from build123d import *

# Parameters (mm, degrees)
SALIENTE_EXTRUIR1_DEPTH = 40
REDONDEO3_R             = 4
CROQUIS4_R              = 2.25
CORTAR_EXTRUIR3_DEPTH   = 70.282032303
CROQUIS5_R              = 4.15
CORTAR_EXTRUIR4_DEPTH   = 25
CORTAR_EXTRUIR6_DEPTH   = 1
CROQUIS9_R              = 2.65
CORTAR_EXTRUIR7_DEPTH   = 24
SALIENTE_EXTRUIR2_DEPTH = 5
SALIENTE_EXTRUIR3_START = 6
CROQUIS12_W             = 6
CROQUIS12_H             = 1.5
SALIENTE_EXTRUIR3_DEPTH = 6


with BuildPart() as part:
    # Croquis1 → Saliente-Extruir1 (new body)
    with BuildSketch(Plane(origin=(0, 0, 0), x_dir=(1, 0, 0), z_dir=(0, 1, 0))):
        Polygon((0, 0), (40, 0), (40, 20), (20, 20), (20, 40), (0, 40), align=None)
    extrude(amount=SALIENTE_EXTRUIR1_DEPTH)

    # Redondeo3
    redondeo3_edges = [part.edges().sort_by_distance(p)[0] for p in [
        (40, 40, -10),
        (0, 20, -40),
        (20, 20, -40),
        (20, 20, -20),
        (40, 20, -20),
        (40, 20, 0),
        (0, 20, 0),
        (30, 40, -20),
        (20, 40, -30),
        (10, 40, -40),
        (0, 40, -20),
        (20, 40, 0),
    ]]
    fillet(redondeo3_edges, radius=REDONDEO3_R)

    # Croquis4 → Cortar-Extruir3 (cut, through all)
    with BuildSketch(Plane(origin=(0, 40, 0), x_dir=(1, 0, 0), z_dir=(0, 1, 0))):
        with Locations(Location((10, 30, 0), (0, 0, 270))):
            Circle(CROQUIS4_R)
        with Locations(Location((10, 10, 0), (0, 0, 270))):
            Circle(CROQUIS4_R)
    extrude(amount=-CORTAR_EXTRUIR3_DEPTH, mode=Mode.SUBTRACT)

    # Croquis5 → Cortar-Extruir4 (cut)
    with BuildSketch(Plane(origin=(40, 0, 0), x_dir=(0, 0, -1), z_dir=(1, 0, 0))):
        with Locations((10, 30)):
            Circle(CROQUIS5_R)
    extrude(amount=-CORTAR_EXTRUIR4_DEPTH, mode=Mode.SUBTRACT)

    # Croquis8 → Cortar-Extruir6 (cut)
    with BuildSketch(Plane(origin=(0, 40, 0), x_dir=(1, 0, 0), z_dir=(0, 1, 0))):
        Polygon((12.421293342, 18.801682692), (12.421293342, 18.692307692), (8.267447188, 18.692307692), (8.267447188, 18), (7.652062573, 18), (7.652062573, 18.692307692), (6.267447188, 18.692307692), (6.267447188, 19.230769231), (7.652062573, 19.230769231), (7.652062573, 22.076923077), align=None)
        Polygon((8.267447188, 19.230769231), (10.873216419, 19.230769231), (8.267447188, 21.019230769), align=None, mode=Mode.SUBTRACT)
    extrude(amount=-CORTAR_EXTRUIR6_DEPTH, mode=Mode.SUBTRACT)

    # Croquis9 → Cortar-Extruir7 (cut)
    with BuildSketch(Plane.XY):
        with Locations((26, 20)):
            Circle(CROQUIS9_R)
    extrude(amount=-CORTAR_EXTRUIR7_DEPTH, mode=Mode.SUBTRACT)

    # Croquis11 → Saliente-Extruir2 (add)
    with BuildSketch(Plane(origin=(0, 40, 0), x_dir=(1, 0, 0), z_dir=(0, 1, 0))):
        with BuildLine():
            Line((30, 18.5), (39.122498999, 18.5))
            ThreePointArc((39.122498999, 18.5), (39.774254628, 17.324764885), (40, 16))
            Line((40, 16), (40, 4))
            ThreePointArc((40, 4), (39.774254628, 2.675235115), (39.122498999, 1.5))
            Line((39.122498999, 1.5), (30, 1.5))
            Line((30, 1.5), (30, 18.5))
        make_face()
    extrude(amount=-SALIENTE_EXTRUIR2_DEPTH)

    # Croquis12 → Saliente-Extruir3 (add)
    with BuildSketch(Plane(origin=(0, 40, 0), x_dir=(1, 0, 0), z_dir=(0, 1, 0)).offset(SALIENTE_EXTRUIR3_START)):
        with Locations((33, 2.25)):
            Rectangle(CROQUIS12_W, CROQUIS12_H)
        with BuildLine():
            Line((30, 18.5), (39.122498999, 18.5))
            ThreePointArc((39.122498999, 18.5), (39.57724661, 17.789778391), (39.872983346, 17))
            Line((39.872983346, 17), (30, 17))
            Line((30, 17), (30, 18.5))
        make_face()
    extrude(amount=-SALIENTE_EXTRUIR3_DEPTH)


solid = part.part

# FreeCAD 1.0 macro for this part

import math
import FreeCAD as App
import Part
import Sketcher

V = App.Vector
Q = App.Units.Quantity


def edges_at(feature, points):
    """Names of the edges that pass closest to the given points."""
    edges = feature.Shape.Edges
    near = lambda p: min(range(len(edges)), key=lambda i: edges[i].distToShape(Part.Vertex(*p))[0])
    return sorted({f"Edge{near(p) + 1}" for p in points})

doc = App.newDocument("Part")
params = doc.addObject("Spreadsheet::Sheet", "Params")
for row, (alias, value) in enumerate([
    ("sketch1_width", "40 mm"),
    ("pad1_length", "40 mm"),
    ("fillet_radius", "4 mm"),
    ("sketch2_diameter", "4.5 mm"),
    ("sketch3_diameter", "8.3 mm"),
    ("pocket2_length", "25 mm"),
    ("pocket3_length", "1 mm"),
    ("sketch5_diameter", "5.3 mm"),
    ("pocket4_length", "24 mm"),
    ("sketch6_radius", "4 mm"),
    ("sketch6_height", "17 mm"),
    ("sketch6_height2", "12 mm"),
    ("pad2_length", "5 mm"),
    ("sketch7_radius", "4 mm"),
    ("sketch7_width", "6 mm"),
    ("sketch7_height", "1.5 mm"),
    ("pad3_length", "6 mm"),
], start=1):
    params.set(f"A{row}", alias)
    params.set(f"B{row}", "=" + value)
    params.setAlias(f"B{row}", alias)

body = doc.addObject("PartDesign::Body", "Body")

sketch1 = body.newObject("Sketcher::SketchObject", "Sketch")
sketch1.AttachmentSupport = (doc.getObject("XZ_Plane"), [""])
sketch1.MapMode = "FlatFace"
sketch1.addGeometry(Part.LineSegment(V(0, 0, 0), V(40, 0, 0)), False)
sketch1.addGeometry(Part.LineSegment(V(40, 0, 0), V(40, -20, 0)), False)
sketch1.addGeometry(Part.LineSegment(V(40, -20, 0), V(20, -20, 0)), False)
sketch1.addGeometry(Part.LineSegment(V(20, -20, 0), V(20, -40, 0)), False)
sketch1.addGeometry(Part.LineSegment(V(20, -40, 0), V(0, -40, 0)), False)
sketch1.addGeometry(Part.LineSegment(V(0, -40, 0), V(0, 0, 0)), False)
sketch1.addConstraint(Sketcher.Constraint("Coincident", 0, 2, 1, 1))
sketch1.addConstraint(Sketcher.Constraint("Coincident", 1, 2, 2, 1))
sketch1.addConstraint(Sketcher.Constraint("Coincident", 2, 2, 3, 1))
sketch1.addConstraint(Sketcher.Constraint("Coincident", 3, 2, 4, 1))
sketch1.addConstraint(Sketcher.Constraint("Coincident", 4, 2, 5, 1))
sketch1.addConstraint(Sketcher.Constraint("Coincident", 5, 2, 0, 1))
sketch1.addConstraint(Sketcher.Constraint("Horizontal", 0))
sketch1.addConstraint(Sketcher.Constraint("Vertical", 1))
sketch1.addConstraint(Sketcher.Constraint("Horizontal", 2))
sketch1.addConstraint(Sketcher.Constraint("Vertical", 3))
sketch1.addConstraint(Sketcher.Constraint("Horizontal", 4))
sketch1.addConstraint(Sketcher.Constraint("Vertical", 5))
sketch1.addConstraint(Sketcher.Constraint("Coincident", 5, 2, -1, 1))
sketch1.addConstraint(Sketcher.Constraint("Equal", 2, 4))
sketch1.addConstraint(Sketcher.Constraint("Equal", 4, 1))
sketch1.addConstraint(Sketcher.Constraint("Equal", 1, 3))
sketch1.addConstraint(Sketcher.Constraint("DistanceX", 0, 1, 0, 2, Q("40 mm")))
sketch1.setExpression("Constraints[16]", "Params.sketch1_width")
pad1 = body.newObject("PartDesign::Pad", "Pad")
pad1.Profile = sketch1
pad1.setExpression("Length", "Params.pad1_length")
pad1.Reversed = True
doc.recompute()

fillet = body.newObject("PartDesign::Fillet", "Fillet")
fillet.Base = (pad1, edges_at(pad1, [
    (40, 40, -10),
    (0, 20, -40),
    (20, 20, -40),
    (20, 20, -20),
    (40, 20, -20),
    (40, 20, 0),
    (0, 20, 0),
    (30, 40, -20),
    (20, 40, -30),
    (10, 40, -40),
    (0, 40, -20),
    (20, 40, 0),
]))
fillet.setExpression("Radius", "Params.fillet_radius")

sketch2 = body.newObject("Sketcher::SketchObject", "Sketch001")
sketch2.AttachmentSupport = (doc.getObject("XZ_Plane"), [""])
sketch2.MapMode = "FlatFace"
sketch2.AttachmentOffset = App.Placement(V(0, 0, -40), App.Rotation())
sketch2.addGeometry(Part.Circle(V(10, -30, 0), V(0, 0, 1), 2.25), False)
sketch2.addGeometry(Part.Circle(V(10, -10, 0), V(0, 0, 1), 2.25), False)
sketch2.addConstraint(Sketcher.Constraint("Equal", 0, 1))
sketch2.addConstraint(Sketcher.Constraint("Vertical", 0, 3, 1, 3))
sketch2.addConstraint(Sketcher.Constraint("Diameter", 0, Q("4.5 mm")))
sketch2.addConstraint(Sketcher.Constraint("DistanceX", -1, 1, 0, 3, Q("10 mm")))
sketch2.addConstraint(Sketcher.Constraint("DistanceY", 0, 3, -1, 1, Q("30 mm")))
sketch2.addConstraint(Sketcher.Constraint("DistanceY", 1, 3, -1, 1, Q("10 mm")))
sketch2.setExpression("Constraints[2]", "Params.sketch2_diameter")
pocket1 = body.newObject("PartDesign::Pocket", "Pocket")
pocket1.Profile = sketch2
pocket1.Type = "ThroughAll"
pocket1.Reversed = True

sketch3 = body.newObject("Sketcher::SketchObject", "Sketch002")
sketch3.AttachmentSupport = (doc.getObject("YZ_Plane"), [""])
sketch3.MapMode = "FlatFace"
sketch3.AttachmentOffset = App.Placement(V(0, 0, 40), App.Rotation())
sketch3.addGeometry(Part.Circle(V(30, -10, 0), V(0, 0, 1), 4.15), False)
sketch3.addConstraint(Sketcher.Constraint("Diameter", 0, Q("8.3 mm")))
sketch3.addConstraint(Sketcher.Constraint("DistanceX", -1, 1, 0, 3, Q("30 mm")))
sketch3.addConstraint(Sketcher.Constraint("DistanceY", 0, 3, -1, 1, Q("10 mm")))
sketch3.setExpression("Constraints[0]", "Params.sketch3_diameter")
pocket2 = body.newObject("PartDesign::Pocket", "Pocket001")
pocket2.Profile = sketch3
pocket2.setExpression("Length", "Params.pocket2_length")

sketch4 = body.newObject("Sketcher::SketchObject", "Sketch003")
sketch4.AttachmentSupport = (doc.getObject("XZ_Plane"), [""])
sketch4.MapMode = "FlatFace"
sketch4.AttachmentOffset = App.Placement(V(0, 0, -40), App.Rotation())
sketch4.addGeometry(Part.LineSegment(V(12.421293, -18.692308, 0), V(12.421293, -18.801683, 0)), False)
sketch4.addGeometry(Part.LineSegment(V(12.421293, -18.801683, 0), V(7.652063, -22.076923, 0)), False)
sketch4.addGeometry(Part.LineSegment(V(7.652063, -22.076923, 0), V(7.652063, -19.230769, 0)), False)
sketch4.addGeometry(Part.LineSegment(V(7.652063, -19.230769, 0), V(6.267447, -19.230769, 0)), False)
sketch4.addGeometry(Part.LineSegment(V(6.267447, -19.230769, 0), V(6.267447, -18.692308, 0)), False)
sketch4.addGeometry(Part.LineSegment(V(6.267447, -18.692308, 0), V(7.652063, -18.692308, 0)), False)
sketch4.addGeometry(Part.LineSegment(V(7.652063, -18.692308, 0), V(7.652063, -18, 0)), False)
sketch4.addGeometry(Part.LineSegment(V(7.652063, -18, 0), V(8.267447, -18, 0)), False)
sketch4.addGeometry(Part.LineSegment(V(8.267447, -18, 0), V(8.267447, -18.692308, 0)), False)
sketch4.addGeometry(Part.LineSegment(V(8.267447, -18.692308, 0), V(12.421293, -18.692308, 0)), False)
sketch4.addGeometry(Part.LineSegment(V(8.267447, -19.230769, 0), V(8.267447, -21.019231, 0)), False)
sketch4.addGeometry(Part.LineSegment(V(8.267447, -21.019231, 0), V(10.873216, -19.230769, 0)), False)
sketch4.addGeometry(Part.LineSegment(V(10.873216, -19.230769, 0), V(8.267447, -19.230769, 0)), False)
sketch4.addConstraint(Sketcher.Constraint("Coincident", 0, 2, 1, 1))
sketch4.addConstraint(Sketcher.Constraint("Coincident", 1, 2, 2, 1))
sketch4.addConstraint(Sketcher.Constraint("Coincident", 2, 2, 3, 1))
sketch4.addConstraint(Sketcher.Constraint("Coincident", 3, 2, 4, 1))
sketch4.addConstraint(Sketcher.Constraint("Coincident", 4, 2, 5, 1))
sketch4.addConstraint(Sketcher.Constraint("Coincident", 5, 2, 6, 1))
sketch4.addConstraint(Sketcher.Constraint("Coincident", 6, 2, 7, 1))
sketch4.addConstraint(Sketcher.Constraint("Coincident", 7, 2, 8, 1))
sketch4.addConstraint(Sketcher.Constraint("Coincident", 8, 2, 9, 1))
sketch4.addConstraint(Sketcher.Constraint("Coincident", 9, 2, 0, 1))
sketch4.addConstraint(Sketcher.Constraint("Coincident", 10, 2, 11, 1))
sketch4.addConstraint(Sketcher.Constraint("Coincident", 11, 2, 12, 1))
sketch4.addConstraint(Sketcher.Constraint("Coincident", 12, 2, 10, 1))
sketch4.addConstraint(Sketcher.Constraint("Vertical", 0))
sketch4.addConstraint(Sketcher.Constraint("Vertical", 2))
sketch4.addConstraint(Sketcher.Constraint("Horizontal", 3))
sketch4.addConstraint(Sketcher.Constraint("Vertical", 4))
sketch4.addConstraint(Sketcher.Constraint("Horizontal", 5))
sketch4.addConstraint(Sketcher.Constraint("Vertical", 6))
sketch4.addConstraint(Sketcher.Constraint("Horizontal", 7))
sketch4.addConstraint(Sketcher.Constraint("Vertical", 8))
sketch4.addConstraint(Sketcher.Constraint("Horizontal", 9))
sketch4.addConstraint(Sketcher.Constraint("Vertical", 10))
sketch4.addConstraint(Sketcher.Constraint("Horizontal", 12))
sketch4.addConstraint(Sketcher.Constraint("Horizontal", 5, 2, 8, 2))
sketch4.addConstraint(Sketcher.Constraint("Horizontal", 3, 2, 11, 2))
sketch4.addConstraint(Sketcher.Constraint("Vertical", 2, 2, 5, 2))
sketch4.addConstraint(Sketcher.Constraint("Vertical", 8, 2, 10, 2))
sketch4.addConstraint(Sketcher.Constraint("DistanceY", 6, 2, -1, 1, Q("18 mm")))
sketch4.addConstraint(Sketcher.Constraint("DistanceX", 4, 2, 7, 2, Q("2 mm")))
sketch4.addConstraint(Sketcher.Constraint("DistanceX", 12, 2, 12, 1, Q("2.605769 mm")))
sketch4.addConstraint(Sketcher.Constraint("DistanceY", 4, 1, 4, 2, Q("0.538462 mm")))
sketch4.addConstraint(Sketcher.Constraint("DistanceY", 10, 2, 10, 1, Q("1.788462 mm")))
sketch4.addConstraint(Sketcher.Constraint("DistanceX", 3, 2, 3, 1, Q("1.384615 mm")))
sketch4.addConstraint(Sketcher.Constraint("DistanceX", 9, 1, 9, 2, Q("4.153846 mm")))
sketch4.addConstraint(Sketcher.Constraint("DistanceY", 0, 2, 0, 1, Q("0.109375 mm")))
sketch4.addConstraint(Sketcher.Constraint("DistanceY", 2, 1, 2, 2, Q("2.846154 mm")))
sketch4.addConstraint(Sketcher.Constraint("DistanceY", 6, 1, 6, 2, Q("0.692308 mm")))
sketch4.addConstraint(Sketcher.Constraint("DistanceX", -1, 1, 0, 2, Q("12.421293 mm")))
pocket3 = body.newObject("PartDesign::Pocket", "Pocket002")
pocket3.Profile = sketch4
pocket3.setExpression("Length", "Params.pocket3_length")
pocket3.Reversed = True

sketch5 = body.newObject("Sketcher::SketchObject", "Sketch004")
sketch5.AttachmentSupport = (doc.getObject("XY_Plane"), [""])
sketch5.MapMode = "FlatFace"
sketch5.addGeometry(Part.Circle(V(26, 20, 0), V(0, 0, 1), 2.65), False)
sketch5.addConstraint(Sketcher.Constraint("Diameter", 0, Q("5.3 mm")))
sketch5.addConstraint(Sketcher.Constraint("DistanceX", -1, 1, 0, 3, Q("26 mm")))
sketch5.addConstraint(Sketcher.Constraint("DistanceY", -1, 1, 0, 3, Q("20 mm")))
sketch5.setExpression("Constraints[0]", "Params.sketch5_diameter")
pocket4 = body.newObject("PartDesign::Pocket", "Pocket003")
pocket4.Profile = sketch5
pocket4.setExpression("Length", "Params.pocket4_length")

sketch6 = body.newObject("Sketcher::SketchObject", "Sketch005")
sketch6.AttachmentSupport = (doc.getObject("XZ_Plane"), [""])
sketch6.MapMode = "FlatFace"
sketch6.AttachmentOffset = App.Placement(V(0, 0, -40), App.Rotation())
sketch6.addGeometry(Part.LineSegment(V(39.122499, -18.5, 0), V(30, -18.5, 0)), False)
sketch6.addGeometry(Part.LineSegment(V(30, -18.5, 0), V(30, -1.5, 0)), False)
sketch6.addGeometry(Part.LineSegment(V(30, -1.5, 0), V(39.122499, -1.5, 0)), False)
sketch6.addGeometry(Part.ArcOfCircle(Part.Circle(V(36, -4, 0), V(0, 0, 1), 4), math.radians(0), math.radians(38.682187)), False)
sketch6.addGeometry(Part.LineSegment(V(40, -4, 0), V(40, -16, 0)), False)
sketch6.addGeometry(Part.ArcOfCircle(Part.Circle(V(36, -16, 0), V(0, 0, 1), 4), math.radians(-38.682187), math.radians(0)), False)
sketch6.addConstraint(Sketcher.Constraint("Coincident", 0, 2, 1, 1))
sketch6.addConstraint(Sketcher.Constraint("Coincident", 1, 2, 2, 1))
sketch6.addConstraint(Sketcher.Constraint("Coincident", 2, 2, 3, 2))
sketch6.addConstraint(Sketcher.Constraint("Tangent", 3, 1, 4, 1))
sketch6.addConstraint(Sketcher.Constraint("Tangent", 4, 2, 5, 2))
sketch6.addConstraint(Sketcher.Constraint("Coincident", 5, 1, 0, 1))
sketch6.addConstraint(Sketcher.Constraint("Horizontal", 0))
sketch6.addConstraint(Sketcher.Constraint("Vertical", 1))
sketch6.addConstraint(Sketcher.Constraint("Horizontal", 2))
sketch6.addConstraint(Sketcher.Constraint("Vertical", 4))
sketch6.addConstraint(Sketcher.Constraint("Equal", 3, 5))
sketch6.addConstraint(Sketcher.Constraint("Vertical", 2, 2, 5, 1))
sketch6.addConstraint(Sketcher.Constraint("Radius", 3, Q("4 mm")))
sketch6.addConstraint(Sketcher.Constraint("DistanceY", 1, 1, 1, 2, Q("17 mm")))
sketch6.addConstraint(Sketcher.Constraint("DistanceY", 4, 2, 4, 1, Q("12 mm")))
sketch6.addConstraint(Sketcher.Constraint("DistanceX", -1, 1, 3, 3, Q("36 mm")))
sketch6.addConstraint(Sketcher.Constraint("DistanceY", 3, 3, -1, 1, Q("4 mm")))
sketch6.addConstraint(Sketcher.Constraint("DistanceX", -1, 1, 0, 2, Q("30 mm")))
sketch6.setExpression("Constraints[12]", "Params.sketch6_radius")
sketch6.setExpression("Constraints[13]", "Params.sketch6_height")
sketch6.setExpression("Constraints[14]", "Params.sketch6_height2")
pad2 = body.newObject("PartDesign::Pad", "Pad001")
pad2.Profile = sketch6
pad2.setExpression("Length", "Params.pad2_length")

sketch7 = body.newObject("Sketcher::SketchObject", "Sketch006")
sketch7.AttachmentSupport = (doc.getObject("XZ_Plane"), [""])
sketch7.MapMode = "FlatFace"
sketch7.AttachmentOffset = App.Placement(V(0, 0, -46), App.Rotation())
sketch7.addGeometry(Part.LineSegment(V(30, -3, 0), V(30, -1.5, 0)), False)
sketch7.addGeometry(Part.LineSegment(V(30, -1.5, 0), V(36, -1.5, 0)), False)
sketch7.addGeometry(Part.LineSegment(V(36, -1.5, 0), V(36, -3, 0)), False)
sketch7.addGeometry(Part.LineSegment(V(36, -3, 0), V(30, -3, 0)), False)
sketch7.addGeometry(Part.LineSegment(V(39.122499, -18.5, 0), V(30, -18.5, 0)), False)
sketch7.addGeometry(Part.LineSegment(V(30, -18.5, 0), V(30, -17, 0)), False)
sketch7.addGeometry(Part.LineSegment(V(30, -17, 0), V(39.872983, -17, 0)), False)
sketch7.addGeometry(Part.ArcOfCircle(Part.Circle(V(36, -16, 0), V(0, 0, 1), 4), math.radians(-38.682187), math.radians(-14.477512)), False)
sketch7.addConstraint(Sketcher.Constraint("Coincident", 0, 2, 1, 1))
sketch7.addConstraint(Sketcher.Constraint("Coincident", 1, 2, 2, 1))
sketch7.addConstraint(Sketcher.Constraint("Coincident", 2, 2, 3, 1))
sketch7.addConstraint(Sketcher.Constraint("Coincident", 3, 2, 0, 1))
sketch7.addConstraint(Sketcher.Constraint("Coincident", 4, 2, 5, 1))
sketch7.addConstraint(Sketcher.Constraint("Coincident", 5, 2, 6, 1))
sketch7.addConstraint(Sketcher.Constraint("Coincident", 6, 2, 7, 2))
sketch7.addConstraint(Sketcher.Constraint("Coincident", 7, 1, 4, 1))
sketch7.addConstraint(Sketcher.Constraint("Vertical", 0))
sketch7.addConstraint(Sketcher.Constraint("Horizontal", 1))
sketch7.addConstraint(Sketcher.Constraint("Vertical", 2))
sketch7.addConstraint(Sketcher.Constraint("Horizontal", 3))
sketch7.addConstraint(Sketcher.Constraint("Horizontal", 4))
sketch7.addConstraint(Sketcher.Constraint("Vertical", 5))
sketch7.addConstraint(Sketcher.Constraint("Horizontal", 6))
sketch7.addConstraint(Sketcher.Constraint("Vertical", 7, 3, 1, 2))
sketch7.addConstraint(Sketcher.Constraint("Vertical", 3, 2, 4, 2))
sketch7.addConstraint(Sketcher.Constraint("Equal", 2, 5))
sketch7.addConstraint(Sketcher.Constraint("Radius", 7, Q("4 mm")))
sketch7.addConstraint(Sketcher.Constraint("DistanceX", 1, 1, 1, 2, Q("6 mm")))
sketch7.addConstraint(Sketcher.Constraint("DistanceY", 0, 1, 0, 2, Q("1.5 mm")))
sketch7.addConstraint(Sketcher.Constraint("DistanceX", -1, 1, 7, 3, Q("36 mm")))
sketch7.addConstraint(Sketcher.Constraint("DistanceY", 7, 3, -1, 1, Q("16 mm")))
sketch7.addConstraint(Sketcher.Constraint("DistanceY", 2, 2, -1, 1, Q("3 mm")))
sketch7.addConstraint(Sketcher.Constraint("DistanceY", 5, 2, -1, 1, Q("17 mm")))
sketch7.setExpression("Constraints[18]", "Params.sketch7_radius")
sketch7.setExpression("Constraints[19]", "Params.sketch7_width")
sketch7.setExpression("Constraints[20]", "Params.sketch7_height")
pad3 = body.newObject("PartDesign::Pad", "Pad002")
pad3.Profile = sketch7
pad3.setExpression("Length", "Params.pad3_length")

doc.recompute()
